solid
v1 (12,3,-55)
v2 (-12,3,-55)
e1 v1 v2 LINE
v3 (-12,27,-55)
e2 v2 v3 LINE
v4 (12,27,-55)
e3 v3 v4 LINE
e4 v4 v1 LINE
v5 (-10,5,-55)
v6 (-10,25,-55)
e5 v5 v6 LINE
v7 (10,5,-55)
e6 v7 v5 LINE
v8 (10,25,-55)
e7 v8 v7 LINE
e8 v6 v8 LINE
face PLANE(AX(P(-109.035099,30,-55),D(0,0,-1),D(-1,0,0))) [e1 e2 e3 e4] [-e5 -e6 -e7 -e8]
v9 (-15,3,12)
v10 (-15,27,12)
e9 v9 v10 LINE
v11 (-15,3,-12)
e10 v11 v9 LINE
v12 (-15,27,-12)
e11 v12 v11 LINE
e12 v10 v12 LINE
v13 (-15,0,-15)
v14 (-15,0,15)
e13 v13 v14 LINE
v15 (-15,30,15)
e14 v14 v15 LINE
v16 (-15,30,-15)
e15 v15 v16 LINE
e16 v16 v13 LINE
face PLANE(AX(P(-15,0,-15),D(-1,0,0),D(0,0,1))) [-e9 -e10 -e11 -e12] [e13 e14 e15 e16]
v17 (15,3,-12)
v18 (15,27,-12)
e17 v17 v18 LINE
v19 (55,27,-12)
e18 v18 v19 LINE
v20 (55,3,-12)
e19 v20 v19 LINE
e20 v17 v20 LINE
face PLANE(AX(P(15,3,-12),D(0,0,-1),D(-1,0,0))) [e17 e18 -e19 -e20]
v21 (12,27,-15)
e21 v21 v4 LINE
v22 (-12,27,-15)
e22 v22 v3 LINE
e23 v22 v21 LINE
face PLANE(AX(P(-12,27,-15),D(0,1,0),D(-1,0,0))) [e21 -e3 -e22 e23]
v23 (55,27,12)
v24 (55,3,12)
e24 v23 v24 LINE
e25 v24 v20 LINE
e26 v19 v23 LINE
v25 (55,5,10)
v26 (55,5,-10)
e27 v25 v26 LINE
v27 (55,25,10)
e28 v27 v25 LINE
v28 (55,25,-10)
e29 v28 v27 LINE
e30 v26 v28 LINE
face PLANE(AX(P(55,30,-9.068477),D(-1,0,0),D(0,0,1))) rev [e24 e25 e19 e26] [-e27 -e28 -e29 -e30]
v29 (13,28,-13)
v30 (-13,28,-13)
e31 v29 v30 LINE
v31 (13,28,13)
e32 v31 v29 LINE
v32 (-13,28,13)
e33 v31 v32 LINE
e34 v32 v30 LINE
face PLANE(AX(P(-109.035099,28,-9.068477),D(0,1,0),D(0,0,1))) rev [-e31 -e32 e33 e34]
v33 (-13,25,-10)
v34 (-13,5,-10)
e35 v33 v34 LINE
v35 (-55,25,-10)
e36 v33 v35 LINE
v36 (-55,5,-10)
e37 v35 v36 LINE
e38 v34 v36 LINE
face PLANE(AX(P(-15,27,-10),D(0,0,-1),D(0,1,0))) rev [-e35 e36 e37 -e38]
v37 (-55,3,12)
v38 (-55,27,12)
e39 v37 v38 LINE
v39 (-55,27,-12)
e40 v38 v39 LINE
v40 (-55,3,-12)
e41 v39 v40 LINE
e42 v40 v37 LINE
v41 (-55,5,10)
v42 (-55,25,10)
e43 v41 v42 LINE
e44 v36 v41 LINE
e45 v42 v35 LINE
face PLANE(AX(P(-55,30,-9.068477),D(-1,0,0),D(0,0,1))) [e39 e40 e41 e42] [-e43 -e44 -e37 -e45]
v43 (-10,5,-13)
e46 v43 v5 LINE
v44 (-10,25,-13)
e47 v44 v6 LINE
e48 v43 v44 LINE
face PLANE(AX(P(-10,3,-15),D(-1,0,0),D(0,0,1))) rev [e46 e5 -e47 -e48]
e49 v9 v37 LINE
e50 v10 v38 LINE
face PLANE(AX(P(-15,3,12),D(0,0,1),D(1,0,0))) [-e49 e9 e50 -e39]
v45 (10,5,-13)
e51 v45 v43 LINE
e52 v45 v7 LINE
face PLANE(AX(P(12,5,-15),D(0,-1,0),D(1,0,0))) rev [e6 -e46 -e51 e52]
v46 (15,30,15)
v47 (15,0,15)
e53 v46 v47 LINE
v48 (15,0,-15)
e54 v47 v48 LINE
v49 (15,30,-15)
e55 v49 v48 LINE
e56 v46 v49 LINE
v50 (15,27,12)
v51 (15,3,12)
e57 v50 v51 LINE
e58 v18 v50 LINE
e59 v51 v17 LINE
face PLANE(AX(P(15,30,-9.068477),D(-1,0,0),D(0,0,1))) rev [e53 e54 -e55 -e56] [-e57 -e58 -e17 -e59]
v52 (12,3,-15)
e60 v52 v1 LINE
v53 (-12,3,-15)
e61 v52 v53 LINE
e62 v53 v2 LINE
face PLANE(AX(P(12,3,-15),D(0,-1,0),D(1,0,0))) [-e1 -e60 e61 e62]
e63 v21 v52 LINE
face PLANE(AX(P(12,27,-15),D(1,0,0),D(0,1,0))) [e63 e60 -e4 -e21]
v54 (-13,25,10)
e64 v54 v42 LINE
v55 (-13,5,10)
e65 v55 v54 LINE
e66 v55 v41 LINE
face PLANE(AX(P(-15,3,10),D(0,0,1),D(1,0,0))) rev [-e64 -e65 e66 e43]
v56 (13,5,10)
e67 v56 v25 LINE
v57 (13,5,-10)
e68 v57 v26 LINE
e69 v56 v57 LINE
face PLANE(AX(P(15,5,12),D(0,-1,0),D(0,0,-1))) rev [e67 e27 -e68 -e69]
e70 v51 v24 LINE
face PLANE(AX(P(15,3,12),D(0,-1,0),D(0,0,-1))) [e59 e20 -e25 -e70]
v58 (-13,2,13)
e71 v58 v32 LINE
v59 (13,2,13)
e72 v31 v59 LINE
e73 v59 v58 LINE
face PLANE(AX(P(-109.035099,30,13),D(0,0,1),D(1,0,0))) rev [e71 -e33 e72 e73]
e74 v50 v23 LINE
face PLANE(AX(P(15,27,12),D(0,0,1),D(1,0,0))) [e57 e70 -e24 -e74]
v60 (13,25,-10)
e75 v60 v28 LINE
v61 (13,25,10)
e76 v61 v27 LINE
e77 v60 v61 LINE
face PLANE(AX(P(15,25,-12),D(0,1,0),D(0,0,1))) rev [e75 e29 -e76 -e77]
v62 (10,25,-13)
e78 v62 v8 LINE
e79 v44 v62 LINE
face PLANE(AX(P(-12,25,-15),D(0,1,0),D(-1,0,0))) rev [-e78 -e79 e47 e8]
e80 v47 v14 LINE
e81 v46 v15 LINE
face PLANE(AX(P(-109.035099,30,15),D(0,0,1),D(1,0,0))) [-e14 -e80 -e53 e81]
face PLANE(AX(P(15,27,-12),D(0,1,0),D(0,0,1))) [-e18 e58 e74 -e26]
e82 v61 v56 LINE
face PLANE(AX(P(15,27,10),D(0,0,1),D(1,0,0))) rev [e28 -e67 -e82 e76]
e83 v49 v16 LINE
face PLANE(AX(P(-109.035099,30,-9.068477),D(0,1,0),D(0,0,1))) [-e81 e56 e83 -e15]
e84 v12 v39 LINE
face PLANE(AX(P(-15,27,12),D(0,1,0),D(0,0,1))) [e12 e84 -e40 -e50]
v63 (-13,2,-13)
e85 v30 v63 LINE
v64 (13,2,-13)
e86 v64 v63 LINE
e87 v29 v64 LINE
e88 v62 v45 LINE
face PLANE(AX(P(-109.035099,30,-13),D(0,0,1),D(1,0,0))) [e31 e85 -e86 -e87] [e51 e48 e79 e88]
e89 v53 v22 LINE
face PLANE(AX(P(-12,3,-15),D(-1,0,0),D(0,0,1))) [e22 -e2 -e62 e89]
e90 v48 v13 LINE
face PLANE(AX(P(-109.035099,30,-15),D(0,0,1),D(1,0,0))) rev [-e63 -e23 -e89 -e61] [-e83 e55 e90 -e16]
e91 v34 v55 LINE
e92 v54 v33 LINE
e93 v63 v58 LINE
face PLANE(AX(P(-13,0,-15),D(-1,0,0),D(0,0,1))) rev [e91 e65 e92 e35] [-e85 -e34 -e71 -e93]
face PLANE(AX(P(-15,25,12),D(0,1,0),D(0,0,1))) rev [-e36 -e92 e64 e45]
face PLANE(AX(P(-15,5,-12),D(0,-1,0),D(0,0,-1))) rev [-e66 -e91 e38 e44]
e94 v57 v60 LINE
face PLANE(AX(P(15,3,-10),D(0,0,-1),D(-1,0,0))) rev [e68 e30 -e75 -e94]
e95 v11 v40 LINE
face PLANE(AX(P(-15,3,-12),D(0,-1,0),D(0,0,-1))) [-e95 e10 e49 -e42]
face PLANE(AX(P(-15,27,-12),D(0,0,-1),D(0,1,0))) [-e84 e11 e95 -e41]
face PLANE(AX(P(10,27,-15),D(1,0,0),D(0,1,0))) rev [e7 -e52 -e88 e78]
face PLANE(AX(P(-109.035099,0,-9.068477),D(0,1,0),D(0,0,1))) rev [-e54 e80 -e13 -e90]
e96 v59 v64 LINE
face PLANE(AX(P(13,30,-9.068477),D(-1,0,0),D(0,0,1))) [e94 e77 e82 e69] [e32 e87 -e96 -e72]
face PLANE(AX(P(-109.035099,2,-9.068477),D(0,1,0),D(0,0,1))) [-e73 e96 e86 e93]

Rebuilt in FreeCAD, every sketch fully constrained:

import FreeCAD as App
import Part
import Sketcher


def faces_at(feature, points):
    """Names of the faces that lie closest to the given points."""
    faces = feature.Shape.Faces
    near = lambda p: min(range(len(faces)), key=lambda i: faces[i].distToShape(Part.Vertex(*p))[0])
    return sorted({f"Face{near(p) + 1}" for p in points})


def add_polygon(sketch, points):
    """Adds a closed chain of lines whose ends are joined by coincident constraints."""
    first, n = sketch.GeometryCount, len(points)
    for a, b in zip(points, points[1:] + points[:1]):
        sketch.addGeometry(Part.LineSegment(App.Vector(*a, 0), App.Vector(*b, 0)), False)
    for i in range(n):
        sketch.addConstraint(Sketcher.Constraint("Coincident", first + i, 2, first + (i + 1) % n, 1))

doc = App.newDocument("Part")
body = doc.addObject("PartDesign::Body", "Body")

# Sketch on XZ plane
sketch1 = body.newObject("Sketcher::SketchObject", "Sketch")
sketch1.AttachmentSupport = (doc.getObject("XZ_Plane"), [""])
sketch1.MapMode = "FlatFace"
add_polygon(sketch1, [(-15, -55), (-15, -15), (-55, -15), (-55, 15), (55, 15), (55, -15), (15, -15), (15, -55)])  # lines 0-7
sketch1.addConstraint([
    Sketcher.Constraint("Vertical", 0),
    Sketcher.Constraint("Horizontal", 1),
    Sketcher.Constraint("Vertical", 2),
    Sketcher.Constraint("Horizontal", 3),
    Sketcher.Constraint("Vertical", 4),
    Sketcher.Constraint("Horizontal", 5),
    Sketcher.Constraint("Vertical", 6),
    Sketcher.Constraint("Horizontal", 7),
    Sketcher.Constraint("Symmetric", 1, 2, 3, 2, -1, 1),
    Sketcher.Constraint("Symmetric", 0, 2, 5, 2, -2),
    Sketcher.Constraint("Equal", 5, 0),
    Sketcher.Constraint("Equal", 7, 2),
    Sketcher.Constraint("DistanceX", 1, 2, 1, 1, 40.0),
    Sketcher.Constraint("DistanceX", 3, 1, 3, 2, 110.0),
])
pad1 = body.newObject("PartDesign::Pad", "Pad")
pad1.Profile = sketch1
pad1.Length = 30
pad1.Reversed = True

# Sketch on YZ plane
sketch2 = body.newObject("Sketcher::SketchObject", "Sketch001")
sketch2.AttachmentSupport = (doc.getObject("YZ_Plane"), [""])
sketch2.MapMode = "FlatFace"
sketch2.AttachmentOffset = App.Placement(App.Vector(0, 0, 55), App.Rotation())
add_polygon(sketch2, [(30, 15), (0, 15), (0, -15), (30, -15)])  # lines 0-3
add_polygon(sketch2, [(3, -12), (3, 12), (27, 12), (27, -12)])  # lines 4-7
sketch2.addConstraint([
    Sketcher.Constraint("Horizontal", 0),
    Sketcher.Constraint("Vertical", 1),
    Sketcher.Constraint("Horizontal", 2),
    Sketcher.Constraint("Vertical", 3),
    Sketcher.Constraint("Vertical", 4),
    Sketcher.Constraint("Horizontal", 5),
    Sketcher.Constraint("Vertical", 6),
    Sketcher.Constraint("Horizontal", 7),
    Sketcher.Constraint("Symmetric", 0, 2, 1, 2, -1, 1),
    Sketcher.Constraint("Equal", 2, 1),
    Sketcher.Constraint("Equal", 7, 4),
    Sketcher.Constraint("DistanceX", 0, 2, 0, 1, 30.0),
    Sketcher.Constraint("DistanceX", 5, 1, 5, 2, 24.0),
    Sketcher.Constraint("DistanceX", -1, 1, 4, 2, 3.0),
    Sketcher.Constraint("DistanceY", -1, 1, 4, 2, 12.0),
])
pocket1 = body.newObject("PartDesign::Pocket", "Pocket")
pocket1.Profile = sketch2
pocket1.Length = 40

# Sketch on XY plane
sketch3 = body.newObject("Sketcher::SketchObject", "Sketch002")
sketch3.AttachmentSupport = (doc.getObject("XY_Plane"), [""])
sketch3.MapMode = "FlatFace"
sketch3.AttachmentOffset = App.Placement(App.Vector(0, 0, -55), App.Rotation())
add_polygon(sketch3, [(15, 30), (15, 0), (-15, 0), (-15, 30)])  # lines 0-3
add_polygon(sketch3, [(-12, 3), (12, 3), (12, 27), (-12, 27)])  # lines 4-7
sketch3.addConstraint([
    Sketcher.Constraint("Vertical", 0),
    Sketcher.Constraint("Horizontal", 1),
    Sketcher.Constraint("Vertical", 2),
    Sketcher.Constraint("Horizontal", 3),
    Sketcher.Constraint("Horizontal", 4),
    Sketcher.Constraint("Vertical", 5),
    Sketcher.Constraint("Horizontal", 6),
    Sketcher.Constraint("Vertical", 7),
    Sketcher.Constraint("Symmetric", 0, 2, 1, 2, -1, 1),
    Sketcher.Constraint("Equal", 3, 0),
    Sketcher.Constraint("Equal", 6, 5),
    Sketcher.Constraint("DistanceX", 1, 2, 1, 1, 30.0),
    Sketcher.Constraint("DistanceX", 4, 1, 4, 2, 24.0),
    Sketcher.Constraint("DistanceX", -1, 1, 4, 2, 12.0),
    Sketcher.Constraint("DistanceY", -1, 1, 4, 2, 3.0),
])
pocket2 = body.newObject("PartDesign::Pocket", "Pocket001")
pocket2.Profile = sketch3
pocket2.Length = 40
pocket2.Reversed = True

# Sketch on YZ plane
sketch4 = body.newObject("Sketcher::SketchObject", "Sketch003")
sketch4.AttachmentSupport = (doc.getObject("YZ_Plane"), [""])
sketch4.MapMode = "FlatFace"
sketch4.AttachmentOffset = App.Placement(App.Vector(0, 0, -55), App.Rotation())
add_polygon(sketch4, [(30, -15), (0, -15), (0, 15), (30, 15)])  # lines 0-3
add_polygon(sketch4, [(3, 12), (3, -12), (27, -12), (27, 12)])  # lines 4-7
sketch4.addConstraint([
    Sketcher.Constraint("Horizontal", 0),
    Sketcher.Constraint("Vertical", 1),
    Sketcher.Constraint("Horizontal", 2),
    Sketcher.Constraint("Vertical", 3),
    Sketcher.Constraint("Vertical", 4),
    Sketcher.Constraint("Horizontal", 5),
    Sketcher.Constraint("Vertical", 6),
    Sketcher.Constraint("Horizontal", 7),
    Sketcher.Constraint("Symmetric", 0, 2, 1, 2, -1, 1),
    Sketcher.Constraint("Equal", 2, 1),
    Sketcher.Constraint("Equal", 7, 4),
    Sketcher.Constraint("DistanceX", 0, 2, 0, 1, 30.0),
    Sketcher.Constraint("DistanceX", 5, 1, 5, 2, 24.0),
    Sketcher.Constraint("DistanceX", -1, 1, 4, 2, 3.0),
    Sketcher.Constraint("DistanceY", 4, 2, -1, 1, 12.0),
])
pocket3 = body.newObject("PartDesign::Pocket", "Pocket002")
pocket3.Profile = sketch4
pocket3.Length = 40
pocket3.Reversed = True
doc.recompute()

thickness = body.newObject("PartDesign::Thickness", "Thickness")
thickness.Base = (pocket3, faces_at(pocket3, [(55, 15, 0), (0, 15, -55), (-55, 15, 0)]))
thickness.Value = 2
thickness.Reversed = True
thickness.Join = "Intersection"

doc.recompute()
